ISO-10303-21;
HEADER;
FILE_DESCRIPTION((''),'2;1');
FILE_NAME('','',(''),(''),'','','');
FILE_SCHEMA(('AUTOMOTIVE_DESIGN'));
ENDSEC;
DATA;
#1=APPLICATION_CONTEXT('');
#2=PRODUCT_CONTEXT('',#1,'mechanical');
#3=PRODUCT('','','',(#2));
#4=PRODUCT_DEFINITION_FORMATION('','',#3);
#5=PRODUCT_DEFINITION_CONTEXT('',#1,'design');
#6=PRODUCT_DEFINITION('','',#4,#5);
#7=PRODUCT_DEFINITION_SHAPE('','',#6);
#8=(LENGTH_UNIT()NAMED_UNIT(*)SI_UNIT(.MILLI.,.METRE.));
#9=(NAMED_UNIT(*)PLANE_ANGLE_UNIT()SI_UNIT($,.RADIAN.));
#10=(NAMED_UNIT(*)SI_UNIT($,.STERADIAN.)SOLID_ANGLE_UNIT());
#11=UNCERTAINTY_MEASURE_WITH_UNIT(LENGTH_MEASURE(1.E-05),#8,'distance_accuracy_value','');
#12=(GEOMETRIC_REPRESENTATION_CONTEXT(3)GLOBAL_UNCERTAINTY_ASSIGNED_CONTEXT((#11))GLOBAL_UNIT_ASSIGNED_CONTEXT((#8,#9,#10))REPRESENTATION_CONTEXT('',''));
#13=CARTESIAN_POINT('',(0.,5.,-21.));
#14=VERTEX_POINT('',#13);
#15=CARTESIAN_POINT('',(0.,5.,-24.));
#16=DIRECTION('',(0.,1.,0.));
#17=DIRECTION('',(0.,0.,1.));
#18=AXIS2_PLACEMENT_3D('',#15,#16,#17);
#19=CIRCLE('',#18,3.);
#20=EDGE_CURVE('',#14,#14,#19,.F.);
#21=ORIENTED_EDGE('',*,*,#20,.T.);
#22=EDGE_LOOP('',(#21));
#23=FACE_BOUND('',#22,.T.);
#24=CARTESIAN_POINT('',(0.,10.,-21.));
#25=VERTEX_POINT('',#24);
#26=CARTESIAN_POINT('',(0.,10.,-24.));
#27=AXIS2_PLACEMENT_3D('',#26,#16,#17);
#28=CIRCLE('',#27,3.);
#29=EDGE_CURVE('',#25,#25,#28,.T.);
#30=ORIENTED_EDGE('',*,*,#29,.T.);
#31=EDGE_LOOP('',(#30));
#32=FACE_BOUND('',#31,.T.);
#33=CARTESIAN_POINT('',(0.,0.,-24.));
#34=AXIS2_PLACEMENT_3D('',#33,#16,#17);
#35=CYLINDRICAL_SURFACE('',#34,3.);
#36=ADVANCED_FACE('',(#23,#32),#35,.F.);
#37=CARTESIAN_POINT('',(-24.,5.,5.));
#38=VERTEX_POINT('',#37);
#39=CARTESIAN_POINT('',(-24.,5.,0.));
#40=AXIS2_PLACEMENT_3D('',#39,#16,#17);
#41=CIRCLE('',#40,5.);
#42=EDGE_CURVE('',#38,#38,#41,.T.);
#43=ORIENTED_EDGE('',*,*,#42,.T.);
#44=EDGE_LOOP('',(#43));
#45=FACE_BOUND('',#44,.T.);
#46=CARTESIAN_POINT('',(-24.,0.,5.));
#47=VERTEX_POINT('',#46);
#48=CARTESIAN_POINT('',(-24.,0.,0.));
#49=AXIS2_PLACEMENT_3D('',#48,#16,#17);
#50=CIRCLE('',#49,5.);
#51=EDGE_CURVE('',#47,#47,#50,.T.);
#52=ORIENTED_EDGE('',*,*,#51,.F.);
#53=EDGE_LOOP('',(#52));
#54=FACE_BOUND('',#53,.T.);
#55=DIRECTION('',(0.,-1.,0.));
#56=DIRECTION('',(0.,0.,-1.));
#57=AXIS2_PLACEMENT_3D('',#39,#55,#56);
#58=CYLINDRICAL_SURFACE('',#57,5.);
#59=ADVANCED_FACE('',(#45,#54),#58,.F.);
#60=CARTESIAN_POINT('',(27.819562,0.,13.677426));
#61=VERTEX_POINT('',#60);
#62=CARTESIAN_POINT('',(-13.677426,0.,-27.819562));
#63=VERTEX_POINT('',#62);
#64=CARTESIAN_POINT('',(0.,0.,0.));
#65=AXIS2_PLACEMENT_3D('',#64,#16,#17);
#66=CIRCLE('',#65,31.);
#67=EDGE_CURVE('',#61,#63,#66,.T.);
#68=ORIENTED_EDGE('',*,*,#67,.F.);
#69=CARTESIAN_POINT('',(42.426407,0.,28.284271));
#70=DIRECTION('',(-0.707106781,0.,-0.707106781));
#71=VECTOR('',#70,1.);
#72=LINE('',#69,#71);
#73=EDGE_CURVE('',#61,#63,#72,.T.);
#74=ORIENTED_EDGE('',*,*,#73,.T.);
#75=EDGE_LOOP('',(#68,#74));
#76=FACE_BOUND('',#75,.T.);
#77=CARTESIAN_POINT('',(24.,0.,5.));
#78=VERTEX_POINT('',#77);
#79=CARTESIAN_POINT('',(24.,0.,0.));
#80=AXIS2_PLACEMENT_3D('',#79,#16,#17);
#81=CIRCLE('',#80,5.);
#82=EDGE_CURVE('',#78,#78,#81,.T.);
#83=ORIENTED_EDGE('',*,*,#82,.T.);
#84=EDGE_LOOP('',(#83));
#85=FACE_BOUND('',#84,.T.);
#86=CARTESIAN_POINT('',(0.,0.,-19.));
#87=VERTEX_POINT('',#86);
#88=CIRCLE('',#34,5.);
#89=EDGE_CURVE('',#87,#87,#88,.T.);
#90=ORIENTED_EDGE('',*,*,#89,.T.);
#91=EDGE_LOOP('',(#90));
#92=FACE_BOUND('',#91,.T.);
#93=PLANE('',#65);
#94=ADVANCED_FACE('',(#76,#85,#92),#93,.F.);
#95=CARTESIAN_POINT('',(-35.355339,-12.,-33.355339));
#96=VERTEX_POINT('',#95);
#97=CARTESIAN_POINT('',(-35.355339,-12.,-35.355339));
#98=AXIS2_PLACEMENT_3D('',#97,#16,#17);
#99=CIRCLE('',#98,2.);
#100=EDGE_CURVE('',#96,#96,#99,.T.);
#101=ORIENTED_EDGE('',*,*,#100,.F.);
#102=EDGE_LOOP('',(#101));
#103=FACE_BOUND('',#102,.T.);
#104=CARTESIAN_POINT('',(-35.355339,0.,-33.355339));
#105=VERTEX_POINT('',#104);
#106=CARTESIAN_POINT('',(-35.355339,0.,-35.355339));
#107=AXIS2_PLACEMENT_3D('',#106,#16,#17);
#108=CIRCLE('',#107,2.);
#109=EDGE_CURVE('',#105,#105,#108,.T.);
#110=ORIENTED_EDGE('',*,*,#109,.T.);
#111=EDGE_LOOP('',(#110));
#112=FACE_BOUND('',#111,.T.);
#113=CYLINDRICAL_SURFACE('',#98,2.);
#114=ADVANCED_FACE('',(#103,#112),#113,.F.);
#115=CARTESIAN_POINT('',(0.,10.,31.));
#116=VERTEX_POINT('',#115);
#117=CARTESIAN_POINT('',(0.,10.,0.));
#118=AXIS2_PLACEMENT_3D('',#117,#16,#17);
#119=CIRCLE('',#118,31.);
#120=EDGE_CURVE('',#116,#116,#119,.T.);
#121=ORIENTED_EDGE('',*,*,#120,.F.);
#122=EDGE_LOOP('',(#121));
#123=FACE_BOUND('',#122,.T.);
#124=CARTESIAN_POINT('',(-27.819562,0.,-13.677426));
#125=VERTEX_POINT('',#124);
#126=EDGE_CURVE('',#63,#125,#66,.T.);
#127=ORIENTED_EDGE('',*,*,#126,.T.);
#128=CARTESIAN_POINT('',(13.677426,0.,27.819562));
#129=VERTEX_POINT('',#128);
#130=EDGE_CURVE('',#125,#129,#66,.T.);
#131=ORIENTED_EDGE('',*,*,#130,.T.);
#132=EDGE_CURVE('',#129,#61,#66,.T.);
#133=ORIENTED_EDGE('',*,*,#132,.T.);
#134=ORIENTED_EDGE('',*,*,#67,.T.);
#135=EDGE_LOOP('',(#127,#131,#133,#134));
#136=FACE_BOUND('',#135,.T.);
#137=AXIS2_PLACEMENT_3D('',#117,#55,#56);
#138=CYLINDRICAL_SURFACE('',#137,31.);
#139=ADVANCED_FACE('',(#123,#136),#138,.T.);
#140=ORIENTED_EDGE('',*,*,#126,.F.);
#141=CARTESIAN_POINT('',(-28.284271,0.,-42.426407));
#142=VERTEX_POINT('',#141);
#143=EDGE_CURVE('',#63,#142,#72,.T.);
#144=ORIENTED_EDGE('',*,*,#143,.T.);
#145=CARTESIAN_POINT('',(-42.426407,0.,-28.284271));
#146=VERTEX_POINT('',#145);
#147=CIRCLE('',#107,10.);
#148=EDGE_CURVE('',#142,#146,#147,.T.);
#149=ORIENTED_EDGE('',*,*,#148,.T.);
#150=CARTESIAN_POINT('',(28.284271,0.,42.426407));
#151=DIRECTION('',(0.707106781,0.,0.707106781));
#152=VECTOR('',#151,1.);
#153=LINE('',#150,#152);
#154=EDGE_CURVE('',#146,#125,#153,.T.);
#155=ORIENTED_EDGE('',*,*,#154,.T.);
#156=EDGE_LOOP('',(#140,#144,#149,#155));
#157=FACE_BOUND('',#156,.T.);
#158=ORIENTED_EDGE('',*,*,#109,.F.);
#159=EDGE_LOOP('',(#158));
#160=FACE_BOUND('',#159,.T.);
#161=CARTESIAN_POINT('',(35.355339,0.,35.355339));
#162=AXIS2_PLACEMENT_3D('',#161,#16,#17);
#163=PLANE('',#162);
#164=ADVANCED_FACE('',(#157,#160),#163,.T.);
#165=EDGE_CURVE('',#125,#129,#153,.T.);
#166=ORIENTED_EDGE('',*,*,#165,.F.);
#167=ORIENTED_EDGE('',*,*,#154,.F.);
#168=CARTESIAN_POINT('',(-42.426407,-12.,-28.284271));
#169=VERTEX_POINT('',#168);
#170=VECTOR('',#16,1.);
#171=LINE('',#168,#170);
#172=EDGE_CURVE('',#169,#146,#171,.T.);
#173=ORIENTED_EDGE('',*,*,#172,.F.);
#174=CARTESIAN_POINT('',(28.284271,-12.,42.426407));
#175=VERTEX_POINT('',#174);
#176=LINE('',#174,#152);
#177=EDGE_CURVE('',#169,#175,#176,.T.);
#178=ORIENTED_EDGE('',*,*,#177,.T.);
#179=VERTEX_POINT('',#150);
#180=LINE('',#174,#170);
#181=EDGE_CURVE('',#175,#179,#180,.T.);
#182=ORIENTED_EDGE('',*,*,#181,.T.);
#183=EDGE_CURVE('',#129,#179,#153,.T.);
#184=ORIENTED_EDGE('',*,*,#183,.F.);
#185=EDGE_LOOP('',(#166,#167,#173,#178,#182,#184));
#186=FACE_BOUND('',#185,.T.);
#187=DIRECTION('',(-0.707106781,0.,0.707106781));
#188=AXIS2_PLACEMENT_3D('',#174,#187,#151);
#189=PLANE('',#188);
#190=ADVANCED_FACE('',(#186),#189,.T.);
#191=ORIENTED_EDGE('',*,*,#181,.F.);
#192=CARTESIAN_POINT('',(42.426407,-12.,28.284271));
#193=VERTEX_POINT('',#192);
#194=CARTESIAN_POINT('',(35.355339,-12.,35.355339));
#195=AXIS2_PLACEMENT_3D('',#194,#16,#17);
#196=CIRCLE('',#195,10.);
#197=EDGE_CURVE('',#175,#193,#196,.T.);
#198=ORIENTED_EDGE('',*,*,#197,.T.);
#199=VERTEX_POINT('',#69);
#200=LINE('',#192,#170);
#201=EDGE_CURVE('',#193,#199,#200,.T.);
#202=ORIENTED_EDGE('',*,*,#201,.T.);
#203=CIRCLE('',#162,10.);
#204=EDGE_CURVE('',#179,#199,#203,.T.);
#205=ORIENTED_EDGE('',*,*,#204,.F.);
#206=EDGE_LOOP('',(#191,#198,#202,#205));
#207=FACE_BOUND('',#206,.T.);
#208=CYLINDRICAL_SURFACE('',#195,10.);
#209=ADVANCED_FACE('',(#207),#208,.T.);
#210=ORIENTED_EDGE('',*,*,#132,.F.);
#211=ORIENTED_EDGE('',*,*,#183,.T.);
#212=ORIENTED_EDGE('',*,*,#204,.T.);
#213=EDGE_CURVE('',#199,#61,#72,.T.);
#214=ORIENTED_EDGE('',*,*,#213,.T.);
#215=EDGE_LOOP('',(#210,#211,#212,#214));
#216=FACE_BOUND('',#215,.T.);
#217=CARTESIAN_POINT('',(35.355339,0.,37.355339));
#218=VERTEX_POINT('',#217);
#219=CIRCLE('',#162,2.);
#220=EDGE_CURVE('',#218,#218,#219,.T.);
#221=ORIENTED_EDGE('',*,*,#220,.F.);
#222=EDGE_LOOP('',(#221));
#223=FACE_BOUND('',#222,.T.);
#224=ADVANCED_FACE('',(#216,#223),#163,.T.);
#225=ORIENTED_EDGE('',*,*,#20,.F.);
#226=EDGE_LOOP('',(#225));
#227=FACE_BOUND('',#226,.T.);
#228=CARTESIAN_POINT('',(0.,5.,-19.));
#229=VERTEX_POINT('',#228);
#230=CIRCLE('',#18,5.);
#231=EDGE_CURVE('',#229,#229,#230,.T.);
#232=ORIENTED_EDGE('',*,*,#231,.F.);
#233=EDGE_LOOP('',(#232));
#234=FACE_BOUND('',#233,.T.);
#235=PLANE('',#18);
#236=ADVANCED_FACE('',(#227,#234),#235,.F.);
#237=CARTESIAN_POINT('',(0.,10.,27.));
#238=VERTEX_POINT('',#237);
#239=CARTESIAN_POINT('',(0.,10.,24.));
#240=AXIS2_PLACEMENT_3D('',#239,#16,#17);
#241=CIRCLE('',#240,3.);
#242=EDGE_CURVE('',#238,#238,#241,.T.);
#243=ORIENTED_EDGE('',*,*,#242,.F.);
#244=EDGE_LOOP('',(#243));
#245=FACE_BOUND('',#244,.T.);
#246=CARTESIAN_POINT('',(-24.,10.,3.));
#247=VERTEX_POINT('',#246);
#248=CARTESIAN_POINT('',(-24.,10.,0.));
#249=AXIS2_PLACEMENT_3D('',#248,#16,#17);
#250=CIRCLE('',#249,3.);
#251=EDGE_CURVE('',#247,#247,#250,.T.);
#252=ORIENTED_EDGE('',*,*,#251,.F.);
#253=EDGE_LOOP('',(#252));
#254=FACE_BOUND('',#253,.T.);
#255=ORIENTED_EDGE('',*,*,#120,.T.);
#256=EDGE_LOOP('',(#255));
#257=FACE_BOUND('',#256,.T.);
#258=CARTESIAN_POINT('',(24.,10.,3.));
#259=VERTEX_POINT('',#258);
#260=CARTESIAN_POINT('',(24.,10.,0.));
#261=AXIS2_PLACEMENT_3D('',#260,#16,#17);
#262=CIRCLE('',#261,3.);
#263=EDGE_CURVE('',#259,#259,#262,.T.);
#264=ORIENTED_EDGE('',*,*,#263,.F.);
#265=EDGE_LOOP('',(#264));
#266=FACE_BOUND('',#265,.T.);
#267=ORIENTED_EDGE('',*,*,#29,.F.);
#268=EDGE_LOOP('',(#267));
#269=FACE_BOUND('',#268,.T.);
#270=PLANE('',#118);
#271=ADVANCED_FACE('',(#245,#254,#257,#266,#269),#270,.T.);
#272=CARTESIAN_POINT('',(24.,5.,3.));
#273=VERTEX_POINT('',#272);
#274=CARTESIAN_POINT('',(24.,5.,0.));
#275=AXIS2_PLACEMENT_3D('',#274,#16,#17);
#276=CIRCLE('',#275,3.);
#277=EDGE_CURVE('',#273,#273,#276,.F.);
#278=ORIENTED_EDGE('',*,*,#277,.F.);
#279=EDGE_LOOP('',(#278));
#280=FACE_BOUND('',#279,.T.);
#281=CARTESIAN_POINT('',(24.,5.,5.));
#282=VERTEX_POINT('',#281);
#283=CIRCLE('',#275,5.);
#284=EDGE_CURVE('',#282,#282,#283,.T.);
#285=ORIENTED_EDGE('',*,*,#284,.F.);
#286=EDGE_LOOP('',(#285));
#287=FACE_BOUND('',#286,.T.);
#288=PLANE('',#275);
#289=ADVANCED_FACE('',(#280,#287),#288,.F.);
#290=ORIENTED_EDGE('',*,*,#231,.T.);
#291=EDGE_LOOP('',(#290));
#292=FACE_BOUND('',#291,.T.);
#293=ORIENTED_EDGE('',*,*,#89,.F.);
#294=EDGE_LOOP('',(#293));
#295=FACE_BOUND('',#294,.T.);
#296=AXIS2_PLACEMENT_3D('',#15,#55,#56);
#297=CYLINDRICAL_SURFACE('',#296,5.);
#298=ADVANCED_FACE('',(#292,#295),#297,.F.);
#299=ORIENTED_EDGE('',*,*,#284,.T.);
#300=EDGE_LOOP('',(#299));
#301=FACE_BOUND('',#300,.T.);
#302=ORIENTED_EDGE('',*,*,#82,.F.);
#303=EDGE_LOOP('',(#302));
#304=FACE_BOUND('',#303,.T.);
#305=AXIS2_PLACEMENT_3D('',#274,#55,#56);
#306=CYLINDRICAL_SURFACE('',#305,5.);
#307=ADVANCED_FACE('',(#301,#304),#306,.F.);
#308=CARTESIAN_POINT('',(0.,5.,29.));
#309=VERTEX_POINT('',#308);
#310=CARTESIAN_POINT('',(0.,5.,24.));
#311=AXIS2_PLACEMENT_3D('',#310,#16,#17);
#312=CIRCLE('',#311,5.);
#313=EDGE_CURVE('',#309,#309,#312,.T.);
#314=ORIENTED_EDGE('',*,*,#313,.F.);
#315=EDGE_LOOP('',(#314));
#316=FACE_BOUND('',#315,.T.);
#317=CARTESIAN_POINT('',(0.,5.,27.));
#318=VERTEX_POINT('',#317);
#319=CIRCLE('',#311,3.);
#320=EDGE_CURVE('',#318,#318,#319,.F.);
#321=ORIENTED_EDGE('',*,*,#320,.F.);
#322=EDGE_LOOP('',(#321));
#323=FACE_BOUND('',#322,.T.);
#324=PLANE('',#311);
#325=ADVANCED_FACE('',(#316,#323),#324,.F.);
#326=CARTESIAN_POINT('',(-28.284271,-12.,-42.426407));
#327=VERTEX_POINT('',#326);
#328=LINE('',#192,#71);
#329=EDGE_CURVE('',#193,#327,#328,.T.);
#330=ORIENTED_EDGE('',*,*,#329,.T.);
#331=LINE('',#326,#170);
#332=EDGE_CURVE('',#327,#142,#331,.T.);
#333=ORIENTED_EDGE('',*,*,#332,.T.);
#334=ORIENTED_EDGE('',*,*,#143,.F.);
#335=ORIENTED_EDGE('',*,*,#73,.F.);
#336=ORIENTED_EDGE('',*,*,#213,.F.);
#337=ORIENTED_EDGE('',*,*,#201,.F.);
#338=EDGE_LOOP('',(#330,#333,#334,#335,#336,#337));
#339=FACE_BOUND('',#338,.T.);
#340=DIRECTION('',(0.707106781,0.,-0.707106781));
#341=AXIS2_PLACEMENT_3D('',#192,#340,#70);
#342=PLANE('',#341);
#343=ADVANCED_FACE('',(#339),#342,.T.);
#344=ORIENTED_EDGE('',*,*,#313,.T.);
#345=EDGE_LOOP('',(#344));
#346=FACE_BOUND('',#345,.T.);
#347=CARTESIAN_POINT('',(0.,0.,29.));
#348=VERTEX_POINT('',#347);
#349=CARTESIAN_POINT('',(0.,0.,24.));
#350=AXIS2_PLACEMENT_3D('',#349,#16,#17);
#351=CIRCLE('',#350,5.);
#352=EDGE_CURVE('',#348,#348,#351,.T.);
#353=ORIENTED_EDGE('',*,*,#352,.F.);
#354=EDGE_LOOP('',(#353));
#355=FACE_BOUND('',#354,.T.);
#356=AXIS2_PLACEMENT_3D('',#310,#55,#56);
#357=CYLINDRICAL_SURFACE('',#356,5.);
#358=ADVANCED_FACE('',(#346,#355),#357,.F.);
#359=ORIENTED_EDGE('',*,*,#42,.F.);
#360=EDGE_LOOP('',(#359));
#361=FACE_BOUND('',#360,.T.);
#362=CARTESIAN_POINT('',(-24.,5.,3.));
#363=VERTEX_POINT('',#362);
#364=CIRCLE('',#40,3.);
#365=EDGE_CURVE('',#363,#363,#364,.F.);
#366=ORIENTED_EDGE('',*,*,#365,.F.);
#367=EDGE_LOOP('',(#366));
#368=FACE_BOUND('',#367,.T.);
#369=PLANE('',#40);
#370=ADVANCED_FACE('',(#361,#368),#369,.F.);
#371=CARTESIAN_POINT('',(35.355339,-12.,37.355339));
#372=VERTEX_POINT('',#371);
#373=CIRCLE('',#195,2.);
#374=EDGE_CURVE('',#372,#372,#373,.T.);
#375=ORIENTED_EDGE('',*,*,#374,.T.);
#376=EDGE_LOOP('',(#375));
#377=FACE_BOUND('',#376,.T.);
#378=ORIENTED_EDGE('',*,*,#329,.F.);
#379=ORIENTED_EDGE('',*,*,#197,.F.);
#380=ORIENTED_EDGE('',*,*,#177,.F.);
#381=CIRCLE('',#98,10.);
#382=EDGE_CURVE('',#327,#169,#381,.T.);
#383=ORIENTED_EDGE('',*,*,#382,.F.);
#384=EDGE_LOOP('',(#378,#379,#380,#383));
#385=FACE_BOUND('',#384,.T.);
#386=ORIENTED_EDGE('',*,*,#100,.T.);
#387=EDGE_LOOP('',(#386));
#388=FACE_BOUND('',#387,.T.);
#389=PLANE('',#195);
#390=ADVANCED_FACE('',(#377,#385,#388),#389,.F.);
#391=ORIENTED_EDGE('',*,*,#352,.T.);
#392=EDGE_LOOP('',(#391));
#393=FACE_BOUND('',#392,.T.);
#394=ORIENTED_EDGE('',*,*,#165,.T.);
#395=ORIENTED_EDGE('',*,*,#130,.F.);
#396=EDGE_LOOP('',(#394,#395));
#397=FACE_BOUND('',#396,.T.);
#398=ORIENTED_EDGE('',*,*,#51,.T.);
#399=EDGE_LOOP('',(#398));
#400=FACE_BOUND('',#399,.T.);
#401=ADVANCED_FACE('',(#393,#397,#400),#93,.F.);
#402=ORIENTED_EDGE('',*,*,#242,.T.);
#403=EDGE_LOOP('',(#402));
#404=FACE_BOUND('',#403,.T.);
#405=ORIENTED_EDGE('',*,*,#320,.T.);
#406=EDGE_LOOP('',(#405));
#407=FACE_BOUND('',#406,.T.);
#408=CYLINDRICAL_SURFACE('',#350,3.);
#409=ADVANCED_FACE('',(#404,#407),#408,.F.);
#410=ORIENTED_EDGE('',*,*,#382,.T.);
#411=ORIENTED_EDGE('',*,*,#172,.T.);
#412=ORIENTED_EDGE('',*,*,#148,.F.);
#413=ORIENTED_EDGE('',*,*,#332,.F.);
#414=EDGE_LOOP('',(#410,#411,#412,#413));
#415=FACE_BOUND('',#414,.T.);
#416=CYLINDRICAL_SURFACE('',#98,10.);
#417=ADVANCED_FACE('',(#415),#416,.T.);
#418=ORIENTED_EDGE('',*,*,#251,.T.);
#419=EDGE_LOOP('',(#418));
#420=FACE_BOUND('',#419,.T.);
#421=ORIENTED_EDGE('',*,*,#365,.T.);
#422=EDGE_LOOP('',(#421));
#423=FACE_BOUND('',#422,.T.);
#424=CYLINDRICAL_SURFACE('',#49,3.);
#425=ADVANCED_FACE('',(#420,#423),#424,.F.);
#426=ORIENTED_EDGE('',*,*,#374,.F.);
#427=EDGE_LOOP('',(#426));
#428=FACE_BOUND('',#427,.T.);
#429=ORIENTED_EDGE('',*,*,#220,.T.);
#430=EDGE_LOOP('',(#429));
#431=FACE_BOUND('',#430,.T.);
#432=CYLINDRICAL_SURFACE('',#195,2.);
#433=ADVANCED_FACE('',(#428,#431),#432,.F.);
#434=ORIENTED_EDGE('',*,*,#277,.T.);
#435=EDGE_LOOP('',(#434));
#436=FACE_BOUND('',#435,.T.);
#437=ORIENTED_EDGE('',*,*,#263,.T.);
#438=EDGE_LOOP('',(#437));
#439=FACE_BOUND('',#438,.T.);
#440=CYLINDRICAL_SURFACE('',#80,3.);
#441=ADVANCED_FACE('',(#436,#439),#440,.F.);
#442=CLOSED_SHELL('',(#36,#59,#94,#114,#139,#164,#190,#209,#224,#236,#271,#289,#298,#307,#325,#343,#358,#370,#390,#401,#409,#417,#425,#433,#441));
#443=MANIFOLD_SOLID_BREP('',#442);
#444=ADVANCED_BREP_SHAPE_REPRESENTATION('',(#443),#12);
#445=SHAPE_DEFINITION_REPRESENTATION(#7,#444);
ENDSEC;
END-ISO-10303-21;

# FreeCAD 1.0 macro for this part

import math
import FreeCAD as App
import Part
import Sketcher
Q = App.Units.Quantity

doc = App.newDocument("Part")
body = doc.addObject("PartDesign::Body", "Body")

# Sketch on XZ plane
sketch1 = doc.addObject("Sketcher::SketchObject", "Sketch")
body.addObject(sketch1)
sketch1.AttachmentSupport = (doc.XZ_Plane, [""])
sketch1.MapMode = "FlatFace"
sketch1.addGeometry(Part.Circle(App.Vector(0, 0, 0), App.Vector(0, 0, 1), 31), False)
sketch1.addConstraint([
    Sketcher.Constraint("Coincident", 0, 3, -1, 1),
    Sketcher.Constraint("Diameter", 0, 62.0),
])
pad1 = doc.addObject("PartDesign::Pad", "Pad")
body.addObject(pad1)
pad1.Profile = sketch1
pad1.Length = 10
pad1.Reversed = True

# Sketch on XZ plane
sketch2 = doc.addObject("Sketcher::SketchObject", "Sketch001")
body.addObject(sketch2)
sketch2.AttachmentSupport = (doc.XZ_Plane, [""])
sketch2.MapMode = "FlatFace"
sketch2.AttachmentOffset = App.Placement(App.Vector(0, 0, -10), App.Rotation())
sketch2.addGeometry([
    Part.Circle(App.Vector(0, -24, 0), App.Vector(0, 0, 1), 3),
    Part.Circle(App.Vector(24, 0, 0), App.Vector(0, 0, 1), 3),
    Part.Circle(App.Vector(0, 24, 0), App.Vector(0, 0, 1), 3),
    Part.Circle(App.Vector(-24, 0, 0), App.Vector(0, 0, 1), 3),
], False)
sketch2.addConstraint([
    Sketcher.Constraint("Equal", 0, 1),
    Sketcher.Constraint("Equal", 1, 2),
    Sketcher.Constraint("Equal", 2, 3),
    Sketcher.Constraint("Symmetric", 0, 3, 2, 3, -1, 1),
    Sketcher.Constraint("Symmetric", 1, 3, 3, 3, -1, 1),
    Sketcher.Constraint("PointOnObject", 0, 3, -2),
    Sketcher.Constraint("PointOnObject", 1, 3, -1),
    Sketcher.Constraint("Diameter", 0, 6.0),
    Sketcher.Constraint("DistanceY", 0, 3, -1, 1, 24.0),
    Sketcher.Constraint("DistanceX", -1, 1, 1, 3, 24.0),
])
pocket1 = doc.addObject("PartDesign::Pocket", "Pocket")
body.addObject(pocket1)
pocket1.Profile = sketch2
pocket1.Length = 10
pocket1.Reversed = True

# Sketch on XZ plane
sketch3 = doc.addObject("Sketcher::SketchObject", "Sketch002")
body.addObject(sketch3)
sketch3.AttachmentSupport = (doc.XZ_Plane, [""])
sketch3.MapMode = "FlatFace"
sketch3.addGeometry([
    Part.Circle(App.Vector(0, -24, 0), App.Vector(0, 0, 1), 5),
    Part.Circle(App.Vector(24, 0, 0), App.Vector(0, 0, 1), 5),
    Part.Circle(App.Vector(0, 24, 0), App.Vector(0, 0, 1), 5),
    Part.Circle(App.Vector(-24, 0, 0), App.Vector(0, 0, 1), 5),
], False)
sketch3.addConstraint([
    Sketcher.Constraint("Equal", 0, 1),
    Sketcher.Constraint("Equal", 1, 2),
    Sketcher.Constraint("Equal", 2, 3),
    Sketcher.Constraint("Symmetric", 0, 3, 2, 3, -1, 1),
    Sketcher.Constraint("Symmetric", 1, 3, 3, 3, -1, 1),
    Sketcher.Constraint("PointOnObject", 0, 3, -2),
    Sketcher.Constraint("PointOnObject", 1, 3, -1),
    Sketcher.Constraint("Diameter", 0, 10.0),
    Sketcher.Constraint("DistanceY", 0, 3, -1, 1, 24.0),
    Sketcher.Constraint("DistanceX", -1, 1, 1, 3, 24.0),
])
pocket2 = doc.addObject("PartDesign::Pocket", "Pocket001")
body.addObject(pocket2)
pocket2.Profile = sketch3
pocket2.Length = 5

# Sketch on XZ plane
sketch4 = doc.addObject("Sketcher::SketchObject", "Sketch003")
body.addObject(sketch4)
sketch4.AttachmentSupport = (doc.XZ_Plane, [""])
sketch4.MapMode = "FlatFace"
sketch4.addGeometry([
    Part.LineSegment(App.Vector(-42.426407, -28.284271, 0), App.Vector(28.284271, 42.426407, 0)),  # 0
    Part.ArcOfCircle(Part.Circle(App.Vector(35.355339, 35.355339, 0), App.Vector(0, 0, 1), 10), math.radians(-45), math.radians(135)),  # 1
    Part.LineSegment(App.Vector(42.426407, 28.284271, 0), App.Vector(-28.284271, -42.426407, 0)),  # 2
    Part.ArcOfCircle(Part.Circle(App.Vector(-35.355339, -35.355339, 0), App.Vector(0, 0, 1), 10), math.radians(135), math.radians(315)),  # 3
    Part.Circle(App.Vector(35.355339, 35.355339, 0), App.Vector(0, 0, 1), 2),  # 4
    Part.Circle(App.Vector(-35.355339, -35.355339, 0), App.Vector(0, 0, 1), 2),  # 5
], False)
sketch4.addConstraint([
    Sketcher.Constraint("Tangent", 0, 2, 1, 2),
    Sketcher.Constraint("Tangent", 1, 1, 2, 1),
    Sketcher.Constraint("Tangent", 2, 2, 3, 2),
    Sketcher.Constraint("Tangent", 3, 1, 0, 1),
    Sketcher.Constraint("Coincident", 4, 3, 1, 3),
    Sketcher.Constraint("Coincident", 5, 3, 3, 3),
    Sketcher.Constraint("Equal", 1, 3),
    Sketcher.Constraint("Equal", 4, 5),
    Sketcher.Constraint("Symmetric", 1, 3, 3, 3, -1, 1),
    Sketcher.Constraint("Diameter", 4, 4.0),
    Sketcher.Constraint("Radius", 1, 10.0),
    Sketcher.Constraint("Angle", 0, Q("45 deg")),
    Sketcher.Constraint("Distance", 0, 100.0),
])
pad2 = doc.addObject("PartDesign::Pad", "Pad001")
body.addObject(pad2)
pad2.Profile = sketch4
pad2.Length = 12

doc.recompute()
